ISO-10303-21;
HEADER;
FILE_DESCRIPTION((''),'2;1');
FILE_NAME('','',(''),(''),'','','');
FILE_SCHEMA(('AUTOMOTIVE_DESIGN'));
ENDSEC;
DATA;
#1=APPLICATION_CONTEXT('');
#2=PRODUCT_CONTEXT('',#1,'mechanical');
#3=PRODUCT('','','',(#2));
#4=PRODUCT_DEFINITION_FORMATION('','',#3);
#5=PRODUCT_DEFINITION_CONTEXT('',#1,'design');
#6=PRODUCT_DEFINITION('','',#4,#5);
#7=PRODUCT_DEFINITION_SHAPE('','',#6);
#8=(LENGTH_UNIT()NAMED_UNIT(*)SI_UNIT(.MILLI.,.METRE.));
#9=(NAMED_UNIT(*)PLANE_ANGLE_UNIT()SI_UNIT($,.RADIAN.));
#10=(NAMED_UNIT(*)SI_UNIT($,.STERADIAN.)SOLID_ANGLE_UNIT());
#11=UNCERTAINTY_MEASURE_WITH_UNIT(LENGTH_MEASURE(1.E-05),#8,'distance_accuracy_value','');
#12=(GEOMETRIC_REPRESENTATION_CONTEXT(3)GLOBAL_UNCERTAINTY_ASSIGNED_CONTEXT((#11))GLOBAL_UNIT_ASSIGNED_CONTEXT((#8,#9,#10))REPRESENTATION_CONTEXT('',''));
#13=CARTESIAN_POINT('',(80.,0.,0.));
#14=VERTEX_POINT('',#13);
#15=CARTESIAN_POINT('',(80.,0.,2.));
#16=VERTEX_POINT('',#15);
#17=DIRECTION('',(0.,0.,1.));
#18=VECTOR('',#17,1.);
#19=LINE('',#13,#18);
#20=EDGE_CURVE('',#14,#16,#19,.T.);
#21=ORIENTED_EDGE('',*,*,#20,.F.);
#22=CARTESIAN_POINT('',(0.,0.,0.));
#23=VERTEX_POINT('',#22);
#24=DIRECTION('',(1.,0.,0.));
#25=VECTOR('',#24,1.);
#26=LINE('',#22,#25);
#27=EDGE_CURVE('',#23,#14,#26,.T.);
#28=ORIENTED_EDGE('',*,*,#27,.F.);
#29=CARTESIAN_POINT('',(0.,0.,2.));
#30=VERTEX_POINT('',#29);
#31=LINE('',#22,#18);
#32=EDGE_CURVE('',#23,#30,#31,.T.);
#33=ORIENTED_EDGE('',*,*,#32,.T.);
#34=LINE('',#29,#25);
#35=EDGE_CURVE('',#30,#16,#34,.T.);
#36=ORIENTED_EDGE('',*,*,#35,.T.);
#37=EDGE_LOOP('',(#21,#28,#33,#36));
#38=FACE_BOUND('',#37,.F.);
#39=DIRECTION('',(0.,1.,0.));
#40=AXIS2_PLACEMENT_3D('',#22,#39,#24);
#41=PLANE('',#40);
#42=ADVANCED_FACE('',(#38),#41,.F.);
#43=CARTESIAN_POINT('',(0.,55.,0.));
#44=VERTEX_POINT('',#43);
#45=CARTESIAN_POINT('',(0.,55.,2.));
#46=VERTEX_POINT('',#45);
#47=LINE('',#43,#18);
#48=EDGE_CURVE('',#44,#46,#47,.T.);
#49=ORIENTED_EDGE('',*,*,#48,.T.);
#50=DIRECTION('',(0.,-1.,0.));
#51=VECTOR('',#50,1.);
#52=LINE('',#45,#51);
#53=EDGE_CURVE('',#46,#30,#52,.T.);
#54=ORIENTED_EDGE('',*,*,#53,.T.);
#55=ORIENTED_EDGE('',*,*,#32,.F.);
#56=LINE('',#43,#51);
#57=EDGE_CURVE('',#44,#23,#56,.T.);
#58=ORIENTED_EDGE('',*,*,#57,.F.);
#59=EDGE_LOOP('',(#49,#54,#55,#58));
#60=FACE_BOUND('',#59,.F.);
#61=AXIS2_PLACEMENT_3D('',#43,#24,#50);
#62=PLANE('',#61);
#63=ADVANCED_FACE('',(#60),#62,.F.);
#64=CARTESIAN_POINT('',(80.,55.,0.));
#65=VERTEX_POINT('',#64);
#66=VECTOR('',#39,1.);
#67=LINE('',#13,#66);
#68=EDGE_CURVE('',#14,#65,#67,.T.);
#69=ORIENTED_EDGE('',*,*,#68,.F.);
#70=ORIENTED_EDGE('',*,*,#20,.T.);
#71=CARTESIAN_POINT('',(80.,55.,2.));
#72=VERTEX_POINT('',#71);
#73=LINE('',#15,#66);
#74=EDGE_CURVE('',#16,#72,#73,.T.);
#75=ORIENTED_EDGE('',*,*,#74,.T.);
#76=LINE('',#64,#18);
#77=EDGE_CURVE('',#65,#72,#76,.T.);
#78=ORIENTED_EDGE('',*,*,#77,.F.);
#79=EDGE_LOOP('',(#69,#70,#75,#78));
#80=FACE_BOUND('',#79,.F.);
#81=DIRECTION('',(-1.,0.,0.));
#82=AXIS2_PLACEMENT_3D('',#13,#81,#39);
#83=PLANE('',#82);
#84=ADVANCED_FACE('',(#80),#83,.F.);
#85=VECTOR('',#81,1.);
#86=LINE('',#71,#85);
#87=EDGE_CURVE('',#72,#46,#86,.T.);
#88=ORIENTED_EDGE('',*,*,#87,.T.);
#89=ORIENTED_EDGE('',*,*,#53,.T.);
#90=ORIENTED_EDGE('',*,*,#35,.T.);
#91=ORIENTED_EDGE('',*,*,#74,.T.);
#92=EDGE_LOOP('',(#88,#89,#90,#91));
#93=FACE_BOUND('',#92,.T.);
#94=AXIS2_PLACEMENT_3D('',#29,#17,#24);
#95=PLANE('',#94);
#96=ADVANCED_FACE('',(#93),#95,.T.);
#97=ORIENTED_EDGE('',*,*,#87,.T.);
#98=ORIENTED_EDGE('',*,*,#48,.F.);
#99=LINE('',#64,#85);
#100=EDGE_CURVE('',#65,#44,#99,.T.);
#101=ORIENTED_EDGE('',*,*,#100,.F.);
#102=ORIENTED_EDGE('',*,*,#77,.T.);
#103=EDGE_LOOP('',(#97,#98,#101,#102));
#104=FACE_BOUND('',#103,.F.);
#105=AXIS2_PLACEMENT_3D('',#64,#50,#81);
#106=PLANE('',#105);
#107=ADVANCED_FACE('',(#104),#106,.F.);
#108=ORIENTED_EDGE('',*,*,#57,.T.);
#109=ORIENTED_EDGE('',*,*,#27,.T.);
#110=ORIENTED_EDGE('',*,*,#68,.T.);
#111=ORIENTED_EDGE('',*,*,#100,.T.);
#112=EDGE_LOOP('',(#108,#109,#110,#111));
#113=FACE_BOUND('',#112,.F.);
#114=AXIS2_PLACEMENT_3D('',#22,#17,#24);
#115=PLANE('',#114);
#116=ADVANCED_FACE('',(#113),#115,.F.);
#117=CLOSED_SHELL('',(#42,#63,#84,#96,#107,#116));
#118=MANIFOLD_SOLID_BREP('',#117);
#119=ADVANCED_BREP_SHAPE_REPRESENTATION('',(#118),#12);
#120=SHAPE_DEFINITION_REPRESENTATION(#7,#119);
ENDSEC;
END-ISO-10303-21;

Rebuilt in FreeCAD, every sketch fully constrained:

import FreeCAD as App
import Part
import Sketcher

V = App.Vector
Q = App.Units.Quantity


def add_polygon(sketch, points):
    """Adds a closed chain of lines whose ends are joined by coincident constraints."""
    first, n = sketch.GeometryCount, len(points)
    for a, b in zip(points, points[1:] + points[:1]):
        sketch.addGeometry(Part.LineSegment(App.Vector(*a, 0), App.Vector(*b, 0)), False)
    for i in range(n):
        sketch.addConstraint(Sketcher.Constraint("Coincident", first + i, 2, first + (i + 1) % n, 1))

doc = App.newDocument("Part")
body = doc.addObject("PartDesign::Body", "Body")

# Sketch on XY plane
sketch1 = doc.addObject("Sketcher::SketchObject", "Sketch")
body.addObject(sketch1)
sketch1.AttachmentSupport = (doc.XY_Plane, [""])
sketch1.MapMode = "FlatFace"
add_polygon(sketch1, [(0, 55), (0, 0), (80, 0), (80, 55)])  # lines 0-3
sketch1.addConstraint([
    Sketcher.Constraint("Vertical", 0),
    Sketcher.Constraint("Horizontal", 1),
    Sketcher.Constraint("Vertical", 2),
    Sketcher.Constraint("Horizontal", 3),
    Sketcher.Constraint("Coincident", 0, 2, -1, 1),
    Sketcher.Constraint("DistanceX", 1, 1, 1, 2, Q("80 mm")),
    Sketcher.Constraint("DistanceY", 0, 2, 0, 1, Q("55 mm")),
])
pad1 = doc.addObject("PartDesign::Pad", "Pad")
body.addObject(pad1)
pad1.Profile = sketch1
pad1.Length = 2

doc.recompute()
